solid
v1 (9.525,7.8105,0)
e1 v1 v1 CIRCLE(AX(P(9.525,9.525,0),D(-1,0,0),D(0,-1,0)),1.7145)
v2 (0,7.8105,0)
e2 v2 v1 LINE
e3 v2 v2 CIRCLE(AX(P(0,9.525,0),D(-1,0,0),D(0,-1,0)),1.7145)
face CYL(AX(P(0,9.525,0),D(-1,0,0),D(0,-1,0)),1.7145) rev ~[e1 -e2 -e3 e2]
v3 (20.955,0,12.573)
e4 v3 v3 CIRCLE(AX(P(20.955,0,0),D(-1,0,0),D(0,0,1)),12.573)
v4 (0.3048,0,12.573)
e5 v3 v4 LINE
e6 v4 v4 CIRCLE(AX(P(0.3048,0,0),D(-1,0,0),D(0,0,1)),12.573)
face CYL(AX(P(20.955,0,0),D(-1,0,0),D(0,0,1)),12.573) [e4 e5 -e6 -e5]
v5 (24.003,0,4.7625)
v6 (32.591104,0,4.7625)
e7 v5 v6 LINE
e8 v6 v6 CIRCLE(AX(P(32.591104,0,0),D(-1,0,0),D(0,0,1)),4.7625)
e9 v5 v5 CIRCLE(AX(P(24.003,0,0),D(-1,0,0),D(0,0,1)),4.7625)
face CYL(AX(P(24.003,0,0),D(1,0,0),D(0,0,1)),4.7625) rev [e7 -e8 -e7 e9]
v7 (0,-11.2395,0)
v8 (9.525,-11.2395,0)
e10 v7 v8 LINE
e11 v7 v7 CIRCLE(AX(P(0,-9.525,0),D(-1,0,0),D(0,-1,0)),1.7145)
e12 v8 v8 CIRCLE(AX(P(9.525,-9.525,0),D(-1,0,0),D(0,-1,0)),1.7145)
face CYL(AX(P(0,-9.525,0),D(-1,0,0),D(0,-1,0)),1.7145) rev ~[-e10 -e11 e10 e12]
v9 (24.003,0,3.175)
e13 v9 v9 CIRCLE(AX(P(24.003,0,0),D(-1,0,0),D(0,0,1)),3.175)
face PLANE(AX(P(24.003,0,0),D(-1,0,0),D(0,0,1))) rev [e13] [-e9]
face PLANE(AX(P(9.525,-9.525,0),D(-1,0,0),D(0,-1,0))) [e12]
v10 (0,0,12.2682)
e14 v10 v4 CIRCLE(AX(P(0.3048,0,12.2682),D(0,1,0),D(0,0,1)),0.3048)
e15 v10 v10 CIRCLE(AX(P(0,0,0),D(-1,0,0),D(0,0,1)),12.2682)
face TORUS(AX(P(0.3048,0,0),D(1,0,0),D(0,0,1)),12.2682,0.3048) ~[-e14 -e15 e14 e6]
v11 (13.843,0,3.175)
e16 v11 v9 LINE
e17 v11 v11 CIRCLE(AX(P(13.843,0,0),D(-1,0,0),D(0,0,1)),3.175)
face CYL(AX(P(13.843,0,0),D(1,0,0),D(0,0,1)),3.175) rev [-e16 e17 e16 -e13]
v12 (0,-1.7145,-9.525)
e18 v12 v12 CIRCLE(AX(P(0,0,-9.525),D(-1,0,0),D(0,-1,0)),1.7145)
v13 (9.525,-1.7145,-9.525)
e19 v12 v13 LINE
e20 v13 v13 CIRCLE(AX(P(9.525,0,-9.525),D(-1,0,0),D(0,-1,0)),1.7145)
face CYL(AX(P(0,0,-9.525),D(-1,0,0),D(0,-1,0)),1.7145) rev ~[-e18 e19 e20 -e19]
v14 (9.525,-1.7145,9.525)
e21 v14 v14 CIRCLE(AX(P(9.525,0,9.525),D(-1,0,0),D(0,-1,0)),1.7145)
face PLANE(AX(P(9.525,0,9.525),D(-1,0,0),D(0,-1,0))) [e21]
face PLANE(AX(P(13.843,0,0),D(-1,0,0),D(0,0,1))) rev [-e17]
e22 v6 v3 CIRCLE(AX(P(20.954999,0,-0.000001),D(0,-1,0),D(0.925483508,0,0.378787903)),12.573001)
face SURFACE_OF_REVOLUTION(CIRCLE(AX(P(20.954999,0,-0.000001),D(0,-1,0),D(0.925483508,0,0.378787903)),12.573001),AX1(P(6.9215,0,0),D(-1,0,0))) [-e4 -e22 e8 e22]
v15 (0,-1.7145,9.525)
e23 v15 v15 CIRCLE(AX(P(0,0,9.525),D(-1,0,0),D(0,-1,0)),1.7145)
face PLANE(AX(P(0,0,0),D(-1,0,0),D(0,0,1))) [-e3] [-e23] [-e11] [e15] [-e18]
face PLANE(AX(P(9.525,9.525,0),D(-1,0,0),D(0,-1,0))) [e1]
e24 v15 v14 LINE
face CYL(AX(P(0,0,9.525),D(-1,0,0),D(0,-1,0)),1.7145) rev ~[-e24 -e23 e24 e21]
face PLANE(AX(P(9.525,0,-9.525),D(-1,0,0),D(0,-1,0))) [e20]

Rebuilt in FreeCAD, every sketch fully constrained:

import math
import FreeCAD as App
import Part
import Sketcher
Q = App.Units.Quantity


def edges_at(feature, points):
    """Names of the edges that pass closest to the given points."""
    edges = feature.Shape.Edges
    near = lambda p: min(range(len(edges)), key=lambda i: edges[i].distToShape(Part.Vertex(*p))[0])
    return sorted({f"Edge{near(p) + 1}" for p in points})

doc = App.newDocument("Part")
body = doc.addObject("PartDesign::Body", "Body")

# Sketch on XZ plane
sketch1 = body.newObject("Sketcher::SketchObject", "Sketch")
sketch1.AttachmentSupport = (doc.getObject("XZ_Plane"), [""])
sketch1.MapMode = "FlatFace"
sketch1.addGeometry(Part.LineSegment(App.Vector(0, 12.6, 0), App.Vector(0, 0, 0)), False)
sketch1.addGeometry(Part.LineSegment(App.Vector(0, 0, 0), App.Vector(13.8, 0, 0)), False)
sketch1.addGeometry(Part.LineSegment(App.Vector(13.8, 0, 0), App.Vector(13.8, 3.2, 0)), False)
sketch1.addGeometry(Part.LineSegment(App.Vector(13.8, 3.2, 0), App.Vector(24, 3.2, 0)), False)
sketch1.addGeometry(Part.LineSegment(App.Vector(24, 3.2, 0), App.Vector(24, 4.8, 0)), False)
sketch1.addGeometry(Part.LineSegment(App.Vector(24, 4.8, 0), App.Vector(32.6, 4.8, 0)), False)
sketch1.addGeometry(Part.ArcOfCircle(Part.Circle(App.Vector(21, 0, 0), App.Vector(0, 0, 1), 12.6), math.radians(22), math.radians(90)), False)
sketch1.addGeometry(Part.LineSegment(App.Vector(21, 12.6, 0), App.Vector(0, 12.6, 0)), False)
sketch1.addConstraint(Sketcher.Constraint("Coincident", 0, 2, 1, 1))
sketch1.addConstraint(Sketcher.Constraint("Coincident", 1, 2, 2, 1))
sketch1.addConstraint(Sketcher.Constraint("Coincident", 2, 2, 3, 1))
sketch1.addConstraint(Sketcher.Constraint("Coincident", 3, 2, 4, 1))
sketch1.addConstraint(Sketcher.Constraint("Coincident", 4, 2, 5, 1))
sketch1.addConstraint(Sketcher.Constraint("Coincident", 5, 2, 6, 1))
sketch1.addConstraint(Sketcher.Constraint("Tangent", 6, 2, 7, 1))
sketch1.addConstraint(Sketcher.Constraint("Coincident", 7, 2, 0, 1))
sketch1.addConstraint(Sketcher.Constraint("Vertical", 0))
sketch1.addConstraint(Sketcher.Constraint("Horizontal", 1))
sketch1.addConstraint(Sketcher.Constraint("Vertical", 2))
sketch1.addConstraint(Sketcher.Constraint("Horizontal", 3))
sketch1.addConstraint(Sketcher.Constraint("Vertical", 4))
sketch1.addConstraint(Sketcher.Constraint("Horizontal", 5))
sketch1.addConstraint(Sketcher.Constraint("Horizontal", 7))
sketch1.addConstraint(Sketcher.Constraint("Coincident", 0, 2, -1, 1))
sketch1.addConstraint(Sketcher.Constraint("PointOnObject", 6, 3, -1))
sketch1.addConstraint(Sketcher.Constraint("DistanceX", 3, 1, 3, 2, Q("0.4 in")))
sketch1.addConstraint(Sketcher.Constraint("Radius", 6, Q("0.495 in")))
sketch1.addConstraint(Sketcher.Constraint("DistanceX", 1, 1, 1, 2, Q("0.545 in")))
sketch1.addConstraint(Sketcher.Constraint("DistanceX", 7, 2, 7, 1, Q("0.825 in")))
sketch1.addConstraint(Sketcher.Constraint("DistanceY", 2, 1, 2, 2, Q("0.125 in")))
sketch1.addConstraint(Sketcher.Constraint("DistanceY", 4, 1, 4, 2, Q("0.0625 in")))
revolution = body.newObject("PartDesign::Revolution", "Revolution")
revolution.Profile = sketch1
revolution.ReferenceAxis = (sketch1, ["H_Axis"])
revolution.Angle = 360

# Sketch on YZ plane
sketch2 = body.newObject("Sketcher::SketchObject", "Sketch001")
sketch2.AttachmentSupport = (doc.getObject("YZ_Plane"), [""])
sketch2.MapMode = "FlatFace"
sketch2.addGeometry(Part.Circle(App.Vector(0, 9.5, 0), App.Vector(0, 0, 1), 1.7), False)
sketch2.addGeometry(Part.Circle(App.Vector(9.5, 0, 0), App.Vector(0, 0, 1), 1.7), False)
sketch2.addGeometry(Part.Circle(App.Vector(0, -9.5, 0), App.Vector(0, 0, 1), 1.7), False)
sketch2.addGeometry(Part.Circle(App.Vector(-9.5, 0, 0), App.Vector(0, 0, 1), 1.7), False)
sketch2.addConstraint(Sketcher.Constraint("Equal", 0, 1))
sketch2.addConstraint(Sketcher.Constraint("Equal", 1, 2))
sketch2.addConstraint(Sketcher.Constraint("Equal", 2, 3))
sketch2.addConstraint(Sketcher.Constraint("Symmetric", 0, 3, 2, 3, -1, 1))
sketch2.addConstraint(Sketcher.Constraint("Symmetric", 1, 3, 3, 3, -1, 1))
sketch2.addConstraint(Sketcher.Constraint("PointOnObject", 0, 3, -2))
sketch2.addConstraint(Sketcher.Constraint("PointOnObject", 1, 3, -1))
sketch2.addConstraint(Sketcher.Constraint("Diameter", 0, Q("0.135 in")))
sketch2.addConstraint(Sketcher.Constraint("DistanceY", 2, 3, 0, 3, Q("0.75 in")))
sketch2.addConstraint(Sketcher.Constraint("DistanceX", 3, 3, 1, 3, Q("0.75 in")))
pocket1 = body.newObject("PartDesign::Pocket", "Pocket")
pocket1.Profile = sketch2
pocket1.Length = Q("0.375 in")
pocket1.Reversed = True
doc.recompute()

fillet = body.newObject("PartDesign::Fillet", "Fillet")
fillet.Base = (pocket1, edges_at(pocket1, [(0, 0, -12.573)]))
fillet.Radius = Q("0.012 in")

doc.recompute()
